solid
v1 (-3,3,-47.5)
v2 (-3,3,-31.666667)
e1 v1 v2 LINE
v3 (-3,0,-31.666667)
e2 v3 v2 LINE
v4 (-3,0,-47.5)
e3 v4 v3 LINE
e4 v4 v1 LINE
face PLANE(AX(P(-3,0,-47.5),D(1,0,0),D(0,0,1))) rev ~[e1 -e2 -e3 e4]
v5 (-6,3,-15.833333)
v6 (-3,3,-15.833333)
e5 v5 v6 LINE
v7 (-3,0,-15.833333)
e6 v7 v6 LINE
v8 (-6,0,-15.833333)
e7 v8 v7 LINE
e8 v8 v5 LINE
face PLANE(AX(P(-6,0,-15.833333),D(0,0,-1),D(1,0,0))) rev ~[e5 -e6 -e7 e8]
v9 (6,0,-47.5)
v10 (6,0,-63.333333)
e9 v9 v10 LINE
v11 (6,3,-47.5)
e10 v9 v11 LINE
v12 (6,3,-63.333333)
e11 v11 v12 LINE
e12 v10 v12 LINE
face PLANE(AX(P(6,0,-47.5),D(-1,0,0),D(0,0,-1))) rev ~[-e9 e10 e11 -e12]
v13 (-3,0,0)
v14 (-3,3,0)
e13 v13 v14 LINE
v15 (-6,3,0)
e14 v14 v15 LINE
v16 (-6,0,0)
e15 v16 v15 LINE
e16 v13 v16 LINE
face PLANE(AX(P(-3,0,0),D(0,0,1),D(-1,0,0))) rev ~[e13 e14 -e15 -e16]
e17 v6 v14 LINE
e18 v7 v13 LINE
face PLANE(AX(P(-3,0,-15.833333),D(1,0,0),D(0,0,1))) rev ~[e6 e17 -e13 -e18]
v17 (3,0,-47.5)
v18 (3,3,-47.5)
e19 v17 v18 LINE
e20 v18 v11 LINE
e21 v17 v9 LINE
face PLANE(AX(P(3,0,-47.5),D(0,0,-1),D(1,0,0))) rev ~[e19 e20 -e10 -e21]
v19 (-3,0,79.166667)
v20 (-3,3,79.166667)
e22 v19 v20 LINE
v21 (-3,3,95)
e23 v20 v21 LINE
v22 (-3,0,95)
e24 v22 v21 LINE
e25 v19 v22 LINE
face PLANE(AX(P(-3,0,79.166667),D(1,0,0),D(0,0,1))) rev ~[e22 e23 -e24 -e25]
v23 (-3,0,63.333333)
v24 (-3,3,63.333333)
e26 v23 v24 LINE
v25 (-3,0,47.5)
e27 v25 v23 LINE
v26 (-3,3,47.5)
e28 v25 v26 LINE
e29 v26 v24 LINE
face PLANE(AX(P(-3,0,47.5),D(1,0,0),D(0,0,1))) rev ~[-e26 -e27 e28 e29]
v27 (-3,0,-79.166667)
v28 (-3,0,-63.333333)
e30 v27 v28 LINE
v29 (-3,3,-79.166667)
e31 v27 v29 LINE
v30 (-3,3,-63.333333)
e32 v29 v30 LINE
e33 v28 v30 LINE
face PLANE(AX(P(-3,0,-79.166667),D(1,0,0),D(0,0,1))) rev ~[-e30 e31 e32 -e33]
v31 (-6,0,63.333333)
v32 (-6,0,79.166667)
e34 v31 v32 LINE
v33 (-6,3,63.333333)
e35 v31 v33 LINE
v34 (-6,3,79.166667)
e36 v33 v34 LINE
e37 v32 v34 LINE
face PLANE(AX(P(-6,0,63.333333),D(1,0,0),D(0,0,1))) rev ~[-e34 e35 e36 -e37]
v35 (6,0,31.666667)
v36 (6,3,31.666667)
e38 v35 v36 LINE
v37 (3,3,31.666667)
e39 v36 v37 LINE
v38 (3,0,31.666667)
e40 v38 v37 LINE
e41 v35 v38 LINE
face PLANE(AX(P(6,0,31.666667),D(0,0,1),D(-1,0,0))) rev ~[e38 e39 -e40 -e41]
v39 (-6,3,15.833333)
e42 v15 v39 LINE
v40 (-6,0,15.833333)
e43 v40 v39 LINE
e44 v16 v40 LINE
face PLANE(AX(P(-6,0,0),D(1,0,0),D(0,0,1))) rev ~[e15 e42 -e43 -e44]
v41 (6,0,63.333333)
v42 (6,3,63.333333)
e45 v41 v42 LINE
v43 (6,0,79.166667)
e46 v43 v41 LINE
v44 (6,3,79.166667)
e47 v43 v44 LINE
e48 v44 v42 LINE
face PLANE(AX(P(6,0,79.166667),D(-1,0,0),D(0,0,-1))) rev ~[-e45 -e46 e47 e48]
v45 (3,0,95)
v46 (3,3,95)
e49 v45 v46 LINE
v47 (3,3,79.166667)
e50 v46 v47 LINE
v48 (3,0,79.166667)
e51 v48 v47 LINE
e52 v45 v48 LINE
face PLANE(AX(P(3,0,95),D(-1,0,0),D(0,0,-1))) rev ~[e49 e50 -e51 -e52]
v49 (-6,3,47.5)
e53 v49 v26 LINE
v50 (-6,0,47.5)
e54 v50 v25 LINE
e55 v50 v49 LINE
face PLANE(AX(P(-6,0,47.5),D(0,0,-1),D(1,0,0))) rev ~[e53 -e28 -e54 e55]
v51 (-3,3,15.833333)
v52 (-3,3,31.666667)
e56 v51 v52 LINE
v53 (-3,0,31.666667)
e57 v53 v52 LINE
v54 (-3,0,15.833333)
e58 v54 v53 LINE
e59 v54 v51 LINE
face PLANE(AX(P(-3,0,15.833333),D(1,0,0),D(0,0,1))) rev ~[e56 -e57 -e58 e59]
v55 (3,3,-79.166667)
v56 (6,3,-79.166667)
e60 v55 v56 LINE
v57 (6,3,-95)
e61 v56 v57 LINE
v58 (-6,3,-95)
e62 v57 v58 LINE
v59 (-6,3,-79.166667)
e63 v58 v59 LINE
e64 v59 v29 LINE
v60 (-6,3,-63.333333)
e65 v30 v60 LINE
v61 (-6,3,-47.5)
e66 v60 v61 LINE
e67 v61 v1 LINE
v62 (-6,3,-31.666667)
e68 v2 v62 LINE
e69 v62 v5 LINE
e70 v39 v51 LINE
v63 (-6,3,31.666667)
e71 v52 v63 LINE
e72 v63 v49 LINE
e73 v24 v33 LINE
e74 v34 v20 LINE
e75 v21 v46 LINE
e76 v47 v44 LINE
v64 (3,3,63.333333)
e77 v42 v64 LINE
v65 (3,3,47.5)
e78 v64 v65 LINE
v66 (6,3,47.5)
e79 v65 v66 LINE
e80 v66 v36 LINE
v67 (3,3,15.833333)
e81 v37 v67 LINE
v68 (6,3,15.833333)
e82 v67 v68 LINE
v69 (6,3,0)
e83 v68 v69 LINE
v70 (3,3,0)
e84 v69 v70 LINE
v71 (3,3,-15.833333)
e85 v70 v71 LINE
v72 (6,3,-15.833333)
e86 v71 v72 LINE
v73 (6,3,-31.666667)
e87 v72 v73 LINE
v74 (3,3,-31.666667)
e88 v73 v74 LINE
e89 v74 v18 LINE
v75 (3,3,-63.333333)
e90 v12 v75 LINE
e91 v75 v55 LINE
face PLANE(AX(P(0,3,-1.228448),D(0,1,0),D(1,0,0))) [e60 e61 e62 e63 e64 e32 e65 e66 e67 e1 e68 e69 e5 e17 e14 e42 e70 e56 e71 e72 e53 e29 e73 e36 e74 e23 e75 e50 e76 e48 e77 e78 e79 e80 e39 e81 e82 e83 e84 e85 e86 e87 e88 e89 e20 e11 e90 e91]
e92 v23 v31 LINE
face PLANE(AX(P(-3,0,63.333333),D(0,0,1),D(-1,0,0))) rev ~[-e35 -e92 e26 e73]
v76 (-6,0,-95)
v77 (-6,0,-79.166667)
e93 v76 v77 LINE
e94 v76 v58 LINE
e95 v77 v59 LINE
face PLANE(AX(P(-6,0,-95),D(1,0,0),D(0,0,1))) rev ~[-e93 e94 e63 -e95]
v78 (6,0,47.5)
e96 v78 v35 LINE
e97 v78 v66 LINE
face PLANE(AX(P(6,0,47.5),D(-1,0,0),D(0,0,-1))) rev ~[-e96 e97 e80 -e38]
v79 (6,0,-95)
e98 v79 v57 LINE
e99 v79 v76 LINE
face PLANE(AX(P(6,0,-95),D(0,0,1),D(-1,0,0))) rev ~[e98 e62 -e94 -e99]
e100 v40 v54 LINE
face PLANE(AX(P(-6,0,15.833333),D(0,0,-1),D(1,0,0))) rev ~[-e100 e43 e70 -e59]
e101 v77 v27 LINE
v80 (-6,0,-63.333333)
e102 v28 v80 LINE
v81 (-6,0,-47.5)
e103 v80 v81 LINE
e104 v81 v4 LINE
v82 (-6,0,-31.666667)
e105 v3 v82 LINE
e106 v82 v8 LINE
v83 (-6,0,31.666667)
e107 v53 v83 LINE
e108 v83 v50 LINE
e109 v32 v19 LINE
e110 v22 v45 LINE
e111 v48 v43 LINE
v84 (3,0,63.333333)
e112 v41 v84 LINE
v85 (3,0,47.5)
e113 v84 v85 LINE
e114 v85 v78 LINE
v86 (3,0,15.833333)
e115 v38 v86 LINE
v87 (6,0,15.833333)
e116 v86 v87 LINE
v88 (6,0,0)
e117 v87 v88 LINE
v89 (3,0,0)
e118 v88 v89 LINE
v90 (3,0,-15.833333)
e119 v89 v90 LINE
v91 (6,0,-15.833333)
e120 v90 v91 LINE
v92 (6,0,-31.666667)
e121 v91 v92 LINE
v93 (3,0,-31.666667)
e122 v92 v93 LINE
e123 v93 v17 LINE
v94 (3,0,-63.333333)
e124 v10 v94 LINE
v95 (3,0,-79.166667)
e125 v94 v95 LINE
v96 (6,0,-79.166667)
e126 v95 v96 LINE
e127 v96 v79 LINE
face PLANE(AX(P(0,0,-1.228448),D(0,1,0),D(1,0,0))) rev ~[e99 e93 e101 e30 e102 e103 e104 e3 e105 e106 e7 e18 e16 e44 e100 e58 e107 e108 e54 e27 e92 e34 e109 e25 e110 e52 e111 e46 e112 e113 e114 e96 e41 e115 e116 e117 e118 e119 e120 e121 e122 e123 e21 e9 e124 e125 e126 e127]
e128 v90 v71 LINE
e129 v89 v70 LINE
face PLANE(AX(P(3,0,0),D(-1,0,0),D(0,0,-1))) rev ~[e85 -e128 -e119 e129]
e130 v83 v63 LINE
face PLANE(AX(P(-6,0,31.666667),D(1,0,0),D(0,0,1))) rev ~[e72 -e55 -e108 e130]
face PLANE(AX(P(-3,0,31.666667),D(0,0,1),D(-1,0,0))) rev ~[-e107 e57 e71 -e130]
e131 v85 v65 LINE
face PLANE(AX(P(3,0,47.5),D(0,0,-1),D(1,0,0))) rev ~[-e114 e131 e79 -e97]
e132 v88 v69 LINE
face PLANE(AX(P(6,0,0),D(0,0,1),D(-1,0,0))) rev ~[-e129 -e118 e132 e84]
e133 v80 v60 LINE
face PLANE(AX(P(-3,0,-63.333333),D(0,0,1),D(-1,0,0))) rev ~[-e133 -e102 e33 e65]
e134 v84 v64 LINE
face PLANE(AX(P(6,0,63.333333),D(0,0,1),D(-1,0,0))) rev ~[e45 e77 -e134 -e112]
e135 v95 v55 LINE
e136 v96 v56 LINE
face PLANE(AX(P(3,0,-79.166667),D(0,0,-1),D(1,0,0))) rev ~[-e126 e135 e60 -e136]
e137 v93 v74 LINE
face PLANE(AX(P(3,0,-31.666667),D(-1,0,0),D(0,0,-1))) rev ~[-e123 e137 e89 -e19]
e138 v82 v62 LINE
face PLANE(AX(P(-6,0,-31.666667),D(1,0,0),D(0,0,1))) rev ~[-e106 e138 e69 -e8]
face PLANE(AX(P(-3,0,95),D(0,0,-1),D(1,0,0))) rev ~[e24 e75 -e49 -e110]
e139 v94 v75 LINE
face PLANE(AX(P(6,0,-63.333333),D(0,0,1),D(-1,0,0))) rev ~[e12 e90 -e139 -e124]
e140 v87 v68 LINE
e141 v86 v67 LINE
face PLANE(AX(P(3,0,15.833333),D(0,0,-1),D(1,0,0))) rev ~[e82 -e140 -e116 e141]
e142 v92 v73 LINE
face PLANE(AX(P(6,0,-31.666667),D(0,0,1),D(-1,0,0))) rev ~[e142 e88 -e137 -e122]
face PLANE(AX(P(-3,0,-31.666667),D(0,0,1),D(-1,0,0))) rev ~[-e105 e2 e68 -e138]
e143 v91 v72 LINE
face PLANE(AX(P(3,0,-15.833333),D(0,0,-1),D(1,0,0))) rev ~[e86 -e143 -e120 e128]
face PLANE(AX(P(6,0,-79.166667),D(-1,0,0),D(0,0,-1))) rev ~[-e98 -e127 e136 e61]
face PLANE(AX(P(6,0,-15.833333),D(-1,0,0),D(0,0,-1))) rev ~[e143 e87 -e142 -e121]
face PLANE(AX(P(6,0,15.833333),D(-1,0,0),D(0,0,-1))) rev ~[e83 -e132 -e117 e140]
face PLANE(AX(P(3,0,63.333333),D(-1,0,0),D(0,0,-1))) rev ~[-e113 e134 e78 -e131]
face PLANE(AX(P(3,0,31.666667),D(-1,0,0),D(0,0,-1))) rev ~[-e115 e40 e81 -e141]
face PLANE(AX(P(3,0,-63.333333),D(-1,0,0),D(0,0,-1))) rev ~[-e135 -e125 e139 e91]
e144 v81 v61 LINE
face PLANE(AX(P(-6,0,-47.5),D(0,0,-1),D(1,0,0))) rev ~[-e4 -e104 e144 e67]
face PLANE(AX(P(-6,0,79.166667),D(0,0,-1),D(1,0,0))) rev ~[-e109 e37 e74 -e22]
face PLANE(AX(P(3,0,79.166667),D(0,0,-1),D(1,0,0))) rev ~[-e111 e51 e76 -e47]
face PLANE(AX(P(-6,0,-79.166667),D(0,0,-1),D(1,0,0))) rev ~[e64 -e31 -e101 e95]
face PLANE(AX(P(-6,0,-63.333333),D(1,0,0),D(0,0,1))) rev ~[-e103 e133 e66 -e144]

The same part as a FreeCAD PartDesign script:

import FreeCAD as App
import Part
import Sketcher

V = App.Vector
Q = App.Units.Quantity


def add_polygon(sketch, points):
    """Adds a closed chain of lines whose ends are joined by coincident constraints."""
    first, n = sketch.GeometryCount, len(points)
    for a, b in zip(points, points[1:] + points[:1]):
        sketch.addGeometry(Part.LineSegment(App.Vector(*a, 0), App.Vector(*b, 0)), False)
    for i in range(n):
        sketch.addConstraint(Sketcher.Constraint("Coincident", first + i, 2, first + (i + 1) % n, 1))

doc = App.newDocument("Part")
body = doc.addObject("PartDesign::Body", "Body")

sketch1 = doc.addObject("Sketcher::SketchObject", "Sketch")
body.addObject(sketch1)
sketch1.AttachmentSupport = (doc.XZ_Plane, [""])
sketch1.MapMode = "FlatFace"
add_polygon(sketch1, [(-3, 79.2), (-3, 95), (3, 95), (3, 79.2), (6, 79.2), (6, 63.3), (3, 63.3), (3, 47.5), (6, 47.5), (6, 31.7), (3, 31.7), (3, 15.8), (6, 15.8), (6, 0), (3, 0), (3, -15.8), (6, -15.8), (6, -31.7), (3, -31.7), (3, -47.5), (6, -47.5), (6, -63.3), (3, -63.3), (3, -79.2), (6, -79.2), (6, -95), (-6, -95), (-6, -79.2), (-3, -79.2), (-3, -63.3), (-6, -63.3), (-6, -47.5), (-3, -47.5), (-3, -31.7), (-6, -31.7), (-6, -15.8), (-3, -15.8), (-3, 0), (-6, 0), (-6, 15.8), (-3, 15.8), (-3, 31.7), (-6, 31.7), (-6, 47.5), (-3, 47.5), (-3, 63.3), (-6, 63.3), (-6, 79.2)])
sketch1.addConstraint(Sketcher.Constraint("Vertical", 0))
sketch1.addConstraint(Sketcher.Constraint("Horizontal", 1))
sketch1.addConstraint(Sketcher.Constraint("Vertical", 2))
sketch1.addConstraint(Sketcher.Constraint("Horizontal", 3))
sketch1.addConstraint(Sketcher.Constraint("Vertical", 4))
sketch1.addConstraint(Sketcher.Constraint("Horizontal", 5))
sketch1.addConstraint(Sketcher.Constraint("Vertical", 6))
sketch1.addConstraint(Sketcher.Constraint("Horizontal", 7))
sketch1.addConstraint(Sketcher.Constraint("Vertical", 8))
sketch1.addConstraint(Sketcher.Constraint("Horizontal", 9))
sketch1.addConstraint(Sketcher.Constraint("Vertical", 10))
sketch1.addConstraint(Sketcher.Constraint("Horizontal", 11))
sketch1.addConstraint(Sketcher.Constraint("Vertical", 12))
sketch1.addConstraint(Sketcher.Constraint("Horizontal", 13))
sketch1.addConstraint(Sketcher.Constraint("Vertical", 14))
sketch1.addConstraint(Sketcher.Constraint("Horizontal", 15))
sketch1.addConstraint(Sketcher.Constraint("Vertical", 16))
sketch1.addConstraint(Sketcher.Constraint("Horizontal", 17))
sketch1.addConstraint(Sketcher.Constraint("Vertical", 18))
sketch1.addConstraint(Sketcher.Constraint("Horizontal", 19))
sketch1.addConstraint(Sketcher.Constraint("Vertical", 20))
sketch1.addConstraint(Sketcher.Constraint("Horizontal", 21))
sketch1.addConstraint(Sketcher.Constraint("Vertical", 22))
sketch1.addConstraint(Sketcher.Constraint("Horizontal", 23))
sketch1.addConstraint(Sketcher.Constraint("Vertical", 24))
sketch1.addConstraint(Sketcher.Constraint("Horizontal", 25))
sketch1.addConstraint(Sketcher.Constraint("Vertical", 26))
sketch1.addConstraint(Sketcher.Constraint("Horizontal", 27))
sketch1.addConstraint(Sketcher.Constraint("Vertical", 28))
sketch1.addConstraint(Sketcher.Constraint("Horizontal", 29))
sketch1.addConstraint(Sketcher.Constraint("Vertical", 30))
sketch1.addConstraint(Sketcher.Constraint("Horizontal", 31))
sketch1.addConstraint(Sketcher.Constraint("Vertical", 32))
sketch1.addConstraint(Sketcher.Constraint("Horizontal", 33))
sketch1.addConstraint(Sketcher.Constraint("Vertical", 34))
sketch1.addConstraint(Sketcher.Constraint("Horizontal", 35))
sketch1.addConstraint(Sketcher.Constraint("Vertical", 36))
sketch1.addConstraint(Sketcher.Constraint("Horizontal", 37))
sketch1.addConstraint(Sketcher.Constraint("Vertical", 38))
sketch1.addConstraint(Sketcher.Constraint("Horizontal", 39))
sketch1.addConstraint(Sketcher.Constraint("Vertical", 40))
sketch1.addConstraint(Sketcher.Constraint("Horizontal", 41))
sketch1.addConstraint(Sketcher.Constraint("Vertical", 42))
sketch1.addConstraint(Sketcher.Constraint("Horizontal", 43))
sketch1.addConstraint(Sketcher.Constraint("Vertical", 44))
sketch1.addConstraint(Sketcher.Constraint("Horizontal", 45))
sketch1.addConstraint(Sketcher.Constraint("Vertical", 46))
sketch1.addConstraint(Sketcher.Constraint("Horizontal", 47))
sketch1.addConstraint(Sketcher.Constraint("Symmetric", 3, 2, 26, 2, -1, 1))
sketch1.addConstraint(Sketcher.Constraint("Symmetric", 5, 2, 28, 2, -1, 1))
sketch1.addConstraint(Sketcher.Constraint("Symmetric", 7, 2, 30, 2, -1, 1))
sketch1.addConstraint(Sketcher.Constraint("Symmetric", 9, 2, 32, 2, -1, 1))
sketch1.addConstraint(Sketcher.Constraint("Symmetric", 11, 2, 34, 2, -1, 1))
sketch1.addConstraint(Sketcher.Constraint("Symmetric", 13, 2, 36, 2, -1, 1))
sketch1.addConstraint(Sketcher.Constraint("Symmetric", 15, 2, 38, 2, -1, 1))
sketch1.addConstraint(Sketcher.Constraint("Symmetric", 17, 2, 40, 2, -1, 1))
sketch1.addConstraint(Sketcher.Constraint("Symmetric", 19, 2, 42, 2, -1, 1))
sketch1.addConstraint(Sketcher.Constraint("Symmetric", 21, 2, 44, 2, -1, 1))
sketch1.addConstraint(Sketcher.Constraint("Symmetric", 23, 2, 46, 2, -1, 1))
sketch1.addConstraint(Sketcher.Constraint("Symmetric", 23, 2, 26, 2, -2))
sketch1.addConstraint(Sketcher.Constraint("Symmetric", 21, 2, 28, 2, -2))
sketch1.addConstraint(Sketcher.Constraint("Symmetric", 19, 2, 30, 2, -2))
sketch1.addConstraint(Sketcher.Constraint("Symmetric", 17, 2, 32, 2, -2))
sketch1.addConstraint(Sketcher.Constraint("Symmetric", 15, 2, 34, 2, -2))
sketch1.addConstraint(Sketcher.Constraint("PointOnObject", 12, 2, -1))
sketch1.addConstraint(Sketcher.Constraint("Vertical", 2, 2, 5, 2))
sketch1.addConstraint(Sketcher.Constraint("Vertical", 4, 2, 7, 2))
sketch1.addConstraint(Sketcher.Constraint("Vertical", 6, 2, 9, 2))
sketch1.addConstraint(Sketcher.Constraint("Vertical", 8, 2, 11, 2))
sketch1.addConstraint(Sketcher.Constraint("Vertical", 10, 2, 13, 2))
sketch1.addConstraint(Sketcher.Constraint("Vertical", 0, 2, 27, 2))
sketch1.addConstraint(Sketcher.Constraint("Equal", 2, 4))
sketch1.addConstraint(Sketcher.Constraint("Equal", 4, 6))
sketch1.addConstraint(Sketcher.Constraint("Equal", 6, 8))
sketch1.addConstraint(Sketcher.Constraint("Equal", 8, 10))
sketch1.addConstraint(Sketcher.Constraint("Equal", 10, 12))
sketch1.addConstraint(Sketcher.Constraint("Equal", 22, 24))
sketch1.addConstraint(Sketcher.Constraint("DistanceX", 1, 1, 1, 2, Q("6 mm")))
sketch1.addConstraint(Sketcher.Constraint("DistanceX", 3, 1, 3, 2, Q("3 mm")))
sketch1.addConstraint(Sketcher.Constraint("DistanceY", -1, 1, 0, 2, Q("95 mm")))
pad1 = doc.addObject("PartDesign::Pad", "Pad")
body.addObject(pad1)
pad1.Profile = sketch1
pad1.Length = 3
pad1.Reversed = True

doc.recompute()
